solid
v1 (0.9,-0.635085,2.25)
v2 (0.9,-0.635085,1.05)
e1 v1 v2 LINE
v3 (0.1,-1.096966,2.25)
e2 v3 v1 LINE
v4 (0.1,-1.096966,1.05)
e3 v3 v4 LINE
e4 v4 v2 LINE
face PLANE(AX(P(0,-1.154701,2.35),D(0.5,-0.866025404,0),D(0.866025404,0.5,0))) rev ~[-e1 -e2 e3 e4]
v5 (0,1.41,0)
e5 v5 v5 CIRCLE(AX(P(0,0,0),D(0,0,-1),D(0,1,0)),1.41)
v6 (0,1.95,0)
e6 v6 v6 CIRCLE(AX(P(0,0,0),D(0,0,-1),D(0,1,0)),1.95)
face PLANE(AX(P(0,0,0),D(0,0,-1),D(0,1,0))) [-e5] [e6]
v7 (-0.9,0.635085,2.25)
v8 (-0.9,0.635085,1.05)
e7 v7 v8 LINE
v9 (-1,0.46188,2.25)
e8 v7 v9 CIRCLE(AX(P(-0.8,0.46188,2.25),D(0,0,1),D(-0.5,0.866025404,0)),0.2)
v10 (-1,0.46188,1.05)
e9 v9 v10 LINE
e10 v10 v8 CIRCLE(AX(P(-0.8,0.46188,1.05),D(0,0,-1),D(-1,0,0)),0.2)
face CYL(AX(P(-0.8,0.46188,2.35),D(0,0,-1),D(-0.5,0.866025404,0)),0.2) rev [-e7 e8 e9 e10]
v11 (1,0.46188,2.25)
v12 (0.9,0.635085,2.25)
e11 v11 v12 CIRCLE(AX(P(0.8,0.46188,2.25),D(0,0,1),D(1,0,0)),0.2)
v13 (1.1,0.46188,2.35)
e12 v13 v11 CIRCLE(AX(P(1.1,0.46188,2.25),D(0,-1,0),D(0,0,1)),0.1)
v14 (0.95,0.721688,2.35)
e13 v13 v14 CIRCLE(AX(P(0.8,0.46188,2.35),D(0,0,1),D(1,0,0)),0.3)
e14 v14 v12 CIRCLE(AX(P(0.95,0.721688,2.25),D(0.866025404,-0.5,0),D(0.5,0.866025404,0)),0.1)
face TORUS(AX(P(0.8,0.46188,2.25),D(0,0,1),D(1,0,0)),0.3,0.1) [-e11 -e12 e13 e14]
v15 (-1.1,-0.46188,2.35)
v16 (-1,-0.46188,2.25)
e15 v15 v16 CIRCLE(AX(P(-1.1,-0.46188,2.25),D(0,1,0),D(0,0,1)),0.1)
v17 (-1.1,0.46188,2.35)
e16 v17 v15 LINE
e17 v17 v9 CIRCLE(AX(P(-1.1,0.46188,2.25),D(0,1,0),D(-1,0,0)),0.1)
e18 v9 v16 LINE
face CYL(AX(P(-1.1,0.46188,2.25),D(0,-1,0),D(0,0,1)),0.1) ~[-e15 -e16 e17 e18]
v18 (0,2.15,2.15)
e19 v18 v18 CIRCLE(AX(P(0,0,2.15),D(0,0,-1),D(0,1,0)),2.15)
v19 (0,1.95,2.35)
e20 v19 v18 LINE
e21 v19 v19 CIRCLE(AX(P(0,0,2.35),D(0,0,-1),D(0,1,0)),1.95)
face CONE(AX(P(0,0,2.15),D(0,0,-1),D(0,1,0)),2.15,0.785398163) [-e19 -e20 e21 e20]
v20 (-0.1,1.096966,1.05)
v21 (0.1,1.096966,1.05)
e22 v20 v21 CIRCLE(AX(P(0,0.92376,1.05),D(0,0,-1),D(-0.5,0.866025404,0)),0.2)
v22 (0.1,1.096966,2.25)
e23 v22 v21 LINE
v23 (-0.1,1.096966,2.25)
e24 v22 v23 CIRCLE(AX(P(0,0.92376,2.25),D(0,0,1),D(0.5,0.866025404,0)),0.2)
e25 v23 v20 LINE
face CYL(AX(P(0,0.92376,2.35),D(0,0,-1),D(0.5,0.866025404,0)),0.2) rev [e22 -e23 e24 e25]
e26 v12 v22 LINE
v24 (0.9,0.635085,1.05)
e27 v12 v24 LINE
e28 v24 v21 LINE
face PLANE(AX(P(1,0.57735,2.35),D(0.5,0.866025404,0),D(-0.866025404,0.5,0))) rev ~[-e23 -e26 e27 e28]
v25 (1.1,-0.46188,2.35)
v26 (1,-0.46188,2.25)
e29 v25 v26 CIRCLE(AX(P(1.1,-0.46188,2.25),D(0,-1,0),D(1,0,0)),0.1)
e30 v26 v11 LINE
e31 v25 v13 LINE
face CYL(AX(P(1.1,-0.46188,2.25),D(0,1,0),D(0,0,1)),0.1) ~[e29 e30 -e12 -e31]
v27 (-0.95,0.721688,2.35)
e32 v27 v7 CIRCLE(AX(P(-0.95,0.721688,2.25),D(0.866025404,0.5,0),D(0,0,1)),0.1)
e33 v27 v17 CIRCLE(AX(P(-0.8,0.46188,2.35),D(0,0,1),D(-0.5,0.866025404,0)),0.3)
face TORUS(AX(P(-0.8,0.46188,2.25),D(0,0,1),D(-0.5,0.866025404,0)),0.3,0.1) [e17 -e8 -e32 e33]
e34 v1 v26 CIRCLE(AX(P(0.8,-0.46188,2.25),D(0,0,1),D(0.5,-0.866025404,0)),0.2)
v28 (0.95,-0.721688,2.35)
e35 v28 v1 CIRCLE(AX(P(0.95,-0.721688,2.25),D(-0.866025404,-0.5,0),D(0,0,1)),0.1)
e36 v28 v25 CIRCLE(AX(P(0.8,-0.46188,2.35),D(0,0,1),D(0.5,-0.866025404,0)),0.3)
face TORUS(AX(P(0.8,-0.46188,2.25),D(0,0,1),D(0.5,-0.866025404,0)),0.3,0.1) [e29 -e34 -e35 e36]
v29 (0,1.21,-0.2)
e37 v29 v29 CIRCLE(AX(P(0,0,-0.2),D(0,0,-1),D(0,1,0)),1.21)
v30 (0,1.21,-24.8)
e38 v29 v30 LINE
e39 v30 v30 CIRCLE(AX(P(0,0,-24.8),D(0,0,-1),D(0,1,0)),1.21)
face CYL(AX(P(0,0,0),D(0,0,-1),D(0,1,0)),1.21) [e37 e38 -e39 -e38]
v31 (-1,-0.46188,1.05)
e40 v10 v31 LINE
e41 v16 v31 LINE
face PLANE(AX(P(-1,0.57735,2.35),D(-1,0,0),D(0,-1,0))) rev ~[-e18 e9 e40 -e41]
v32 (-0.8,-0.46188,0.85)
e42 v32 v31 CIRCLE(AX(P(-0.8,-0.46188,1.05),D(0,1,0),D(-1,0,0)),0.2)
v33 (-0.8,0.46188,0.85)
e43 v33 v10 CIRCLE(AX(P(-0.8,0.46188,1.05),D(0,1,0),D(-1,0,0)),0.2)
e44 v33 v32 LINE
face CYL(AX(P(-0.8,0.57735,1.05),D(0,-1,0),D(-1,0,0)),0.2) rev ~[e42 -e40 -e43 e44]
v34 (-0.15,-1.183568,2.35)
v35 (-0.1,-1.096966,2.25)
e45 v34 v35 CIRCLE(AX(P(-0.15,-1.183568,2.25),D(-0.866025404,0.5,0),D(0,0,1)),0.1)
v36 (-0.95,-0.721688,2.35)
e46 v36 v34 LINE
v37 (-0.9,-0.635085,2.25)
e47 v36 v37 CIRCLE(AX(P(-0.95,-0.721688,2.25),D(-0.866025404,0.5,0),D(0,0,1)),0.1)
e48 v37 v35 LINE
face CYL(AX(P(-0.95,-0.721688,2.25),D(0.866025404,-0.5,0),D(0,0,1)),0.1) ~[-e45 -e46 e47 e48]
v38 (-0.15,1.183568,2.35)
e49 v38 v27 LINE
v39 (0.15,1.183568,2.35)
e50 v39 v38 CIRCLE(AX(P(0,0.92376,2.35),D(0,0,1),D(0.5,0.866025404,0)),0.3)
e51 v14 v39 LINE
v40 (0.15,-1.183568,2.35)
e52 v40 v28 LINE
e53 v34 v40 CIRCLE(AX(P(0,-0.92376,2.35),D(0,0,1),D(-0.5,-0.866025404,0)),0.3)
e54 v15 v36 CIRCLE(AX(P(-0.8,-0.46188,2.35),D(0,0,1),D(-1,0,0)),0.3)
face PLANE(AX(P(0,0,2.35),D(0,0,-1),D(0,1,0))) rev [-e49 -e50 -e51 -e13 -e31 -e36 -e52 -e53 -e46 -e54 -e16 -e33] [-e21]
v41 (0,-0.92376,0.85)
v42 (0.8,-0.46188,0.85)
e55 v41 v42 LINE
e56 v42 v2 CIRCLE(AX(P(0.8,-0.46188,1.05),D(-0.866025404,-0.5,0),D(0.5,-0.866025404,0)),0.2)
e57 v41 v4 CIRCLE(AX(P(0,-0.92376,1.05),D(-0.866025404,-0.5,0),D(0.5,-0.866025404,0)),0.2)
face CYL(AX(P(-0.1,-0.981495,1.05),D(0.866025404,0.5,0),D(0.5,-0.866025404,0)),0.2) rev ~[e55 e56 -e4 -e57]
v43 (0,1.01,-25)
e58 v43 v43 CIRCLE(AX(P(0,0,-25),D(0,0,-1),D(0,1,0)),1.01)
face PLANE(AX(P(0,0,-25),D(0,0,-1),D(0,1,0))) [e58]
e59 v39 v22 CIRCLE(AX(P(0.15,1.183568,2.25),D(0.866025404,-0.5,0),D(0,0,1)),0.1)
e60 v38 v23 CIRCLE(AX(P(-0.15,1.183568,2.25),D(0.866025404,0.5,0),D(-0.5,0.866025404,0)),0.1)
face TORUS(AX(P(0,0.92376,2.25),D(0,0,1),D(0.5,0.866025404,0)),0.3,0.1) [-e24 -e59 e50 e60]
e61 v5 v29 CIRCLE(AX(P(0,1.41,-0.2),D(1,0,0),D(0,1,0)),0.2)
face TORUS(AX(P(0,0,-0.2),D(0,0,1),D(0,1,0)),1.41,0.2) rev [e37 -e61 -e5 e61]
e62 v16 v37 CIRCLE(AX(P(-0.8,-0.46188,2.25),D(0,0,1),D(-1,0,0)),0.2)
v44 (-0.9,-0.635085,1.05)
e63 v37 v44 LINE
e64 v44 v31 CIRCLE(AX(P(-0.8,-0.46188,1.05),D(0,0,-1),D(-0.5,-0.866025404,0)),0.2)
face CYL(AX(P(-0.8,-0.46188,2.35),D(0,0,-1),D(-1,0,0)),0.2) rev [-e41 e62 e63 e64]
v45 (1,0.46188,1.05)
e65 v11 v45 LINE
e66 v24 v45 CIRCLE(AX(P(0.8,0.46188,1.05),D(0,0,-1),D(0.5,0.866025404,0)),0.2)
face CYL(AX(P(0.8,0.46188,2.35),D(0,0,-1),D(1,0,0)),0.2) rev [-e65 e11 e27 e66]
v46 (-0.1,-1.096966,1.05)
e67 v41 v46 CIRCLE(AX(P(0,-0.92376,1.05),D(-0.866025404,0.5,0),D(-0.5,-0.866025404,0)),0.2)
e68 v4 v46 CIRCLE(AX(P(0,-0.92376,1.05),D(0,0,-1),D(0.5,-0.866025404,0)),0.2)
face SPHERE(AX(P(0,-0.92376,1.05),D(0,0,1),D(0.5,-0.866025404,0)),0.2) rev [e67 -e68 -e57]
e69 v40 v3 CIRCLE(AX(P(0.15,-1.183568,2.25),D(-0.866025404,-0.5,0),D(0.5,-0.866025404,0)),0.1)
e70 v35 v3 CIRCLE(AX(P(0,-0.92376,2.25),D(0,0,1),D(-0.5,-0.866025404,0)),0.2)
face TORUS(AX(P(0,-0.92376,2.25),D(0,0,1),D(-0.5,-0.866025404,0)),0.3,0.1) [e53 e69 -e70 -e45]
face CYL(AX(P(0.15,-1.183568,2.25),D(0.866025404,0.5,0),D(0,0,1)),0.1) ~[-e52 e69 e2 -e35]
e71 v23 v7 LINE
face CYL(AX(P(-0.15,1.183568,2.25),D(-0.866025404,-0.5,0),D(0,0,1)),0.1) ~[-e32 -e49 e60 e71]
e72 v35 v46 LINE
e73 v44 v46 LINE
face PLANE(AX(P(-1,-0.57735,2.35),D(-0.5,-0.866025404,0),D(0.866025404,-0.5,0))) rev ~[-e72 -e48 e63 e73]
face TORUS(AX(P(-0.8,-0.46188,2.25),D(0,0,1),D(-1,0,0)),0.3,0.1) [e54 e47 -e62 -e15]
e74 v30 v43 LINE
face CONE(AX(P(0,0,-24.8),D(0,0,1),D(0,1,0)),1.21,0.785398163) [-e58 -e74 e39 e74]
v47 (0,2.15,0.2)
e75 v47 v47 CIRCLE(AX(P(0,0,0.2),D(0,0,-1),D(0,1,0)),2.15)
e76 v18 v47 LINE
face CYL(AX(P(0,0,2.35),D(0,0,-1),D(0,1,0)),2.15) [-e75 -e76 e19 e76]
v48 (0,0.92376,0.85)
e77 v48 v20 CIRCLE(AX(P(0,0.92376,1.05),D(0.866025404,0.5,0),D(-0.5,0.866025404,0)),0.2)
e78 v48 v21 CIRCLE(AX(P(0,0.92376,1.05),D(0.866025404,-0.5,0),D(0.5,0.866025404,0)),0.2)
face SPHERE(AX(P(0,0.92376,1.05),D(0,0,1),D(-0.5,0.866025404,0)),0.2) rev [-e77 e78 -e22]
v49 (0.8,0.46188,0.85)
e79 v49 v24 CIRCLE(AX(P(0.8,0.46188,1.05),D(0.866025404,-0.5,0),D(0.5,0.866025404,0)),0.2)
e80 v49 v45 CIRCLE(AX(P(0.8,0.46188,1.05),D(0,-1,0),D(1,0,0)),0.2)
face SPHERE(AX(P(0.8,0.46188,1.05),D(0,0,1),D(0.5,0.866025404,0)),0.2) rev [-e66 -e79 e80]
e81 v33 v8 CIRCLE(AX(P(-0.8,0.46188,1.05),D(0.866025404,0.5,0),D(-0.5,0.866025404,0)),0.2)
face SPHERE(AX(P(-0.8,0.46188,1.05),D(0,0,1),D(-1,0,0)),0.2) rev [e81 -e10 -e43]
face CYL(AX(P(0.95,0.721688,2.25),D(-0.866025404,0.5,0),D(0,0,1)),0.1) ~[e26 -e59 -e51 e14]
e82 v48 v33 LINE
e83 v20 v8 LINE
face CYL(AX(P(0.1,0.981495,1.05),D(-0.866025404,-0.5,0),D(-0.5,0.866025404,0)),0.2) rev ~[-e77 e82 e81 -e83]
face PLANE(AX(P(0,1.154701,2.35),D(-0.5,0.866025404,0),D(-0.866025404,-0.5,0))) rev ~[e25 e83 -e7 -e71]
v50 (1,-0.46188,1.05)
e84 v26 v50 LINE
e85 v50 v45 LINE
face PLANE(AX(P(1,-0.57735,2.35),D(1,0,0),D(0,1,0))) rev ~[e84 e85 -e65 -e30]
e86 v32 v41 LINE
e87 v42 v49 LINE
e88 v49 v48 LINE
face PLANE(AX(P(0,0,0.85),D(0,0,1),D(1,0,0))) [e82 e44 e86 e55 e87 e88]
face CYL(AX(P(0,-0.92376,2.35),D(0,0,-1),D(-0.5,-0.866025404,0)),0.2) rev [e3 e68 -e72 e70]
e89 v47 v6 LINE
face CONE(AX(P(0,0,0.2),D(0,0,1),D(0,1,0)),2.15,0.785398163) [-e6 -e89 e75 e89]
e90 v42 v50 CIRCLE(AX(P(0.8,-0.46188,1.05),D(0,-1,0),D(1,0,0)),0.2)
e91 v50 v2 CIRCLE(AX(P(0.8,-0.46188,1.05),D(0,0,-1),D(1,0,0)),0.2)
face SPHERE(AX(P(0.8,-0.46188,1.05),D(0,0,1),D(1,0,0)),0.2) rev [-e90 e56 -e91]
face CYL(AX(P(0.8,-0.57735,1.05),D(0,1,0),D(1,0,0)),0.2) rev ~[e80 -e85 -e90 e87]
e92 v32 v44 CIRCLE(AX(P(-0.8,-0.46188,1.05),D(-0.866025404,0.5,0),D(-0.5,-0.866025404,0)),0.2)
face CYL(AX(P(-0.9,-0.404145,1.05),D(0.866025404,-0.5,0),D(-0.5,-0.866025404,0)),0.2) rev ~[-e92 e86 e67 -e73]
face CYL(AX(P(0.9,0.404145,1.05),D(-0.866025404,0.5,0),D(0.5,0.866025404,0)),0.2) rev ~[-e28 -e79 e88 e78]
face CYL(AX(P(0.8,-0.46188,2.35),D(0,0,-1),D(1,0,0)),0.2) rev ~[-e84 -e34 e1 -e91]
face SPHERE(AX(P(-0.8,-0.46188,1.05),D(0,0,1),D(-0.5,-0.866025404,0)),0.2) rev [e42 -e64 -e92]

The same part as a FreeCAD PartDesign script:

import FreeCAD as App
import Part
import Sketcher

V = App.Vector
Q = App.Units.Quantity


def edges_at(feature, points):
    """Names of the edges that pass closest to the given points."""
    edges = feature.Shape.Edges
    near = lambda p: min(range(len(edges)), key=lambda i: edges[i].distToShape(Part.Vertex(*p))[0])
    return sorted({f"Edge{near(p) + 1}" for p in points})


def add_polygon(sketch, points):
    """Adds a closed chain of lines whose ends are joined by coincident constraints."""
    first, n = sketch.GeometryCount, len(points)
    for a, b in zip(points, points[1:] + points[:1]):
        sketch.addGeometry(Part.LineSegment(App.Vector(*a, 0), App.Vector(*b, 0)), False)
    for i in range(n):
        sketch.addConstraint(Sketcher.Constraint("Coincident", first + i, 2, first + (i + 1) % n, 1))

doc = App.newDocument("Part")
body = doc.addObject("PartDesign::Body", "Body")

sketch1 = body.newObject("Sketcher::SketchObject", "Sketch")
sketch1.AttachmentSupport = (doc.getObject("YZ_Plane"), [""])
sketch1.MapMode = "FlatFace"
add_polygon(sketch1, [(2.1, 2.4), (0, 2.4), (0, -25), (1.2, -25), (1.2, 0), (2.1, 0)])
sketch1.addConstraint(Sketcher.Constraint("Horizontal", 0))
sketch1.addConstraint(Sketcher.Constraint("Vertical", 1))
sketch1.addConstraint(Sketcher.Constraint("Horizontal", 2))
sketch1.addConstraint(Sketcher.Constraint("Vertical", 3))
sketch1.addConstraint(Sketcher.Constraint("Horizontal", 4))
sketch1.addConstraint(Sketcher.Constraint("Vertical", 5))
sketch1.addConstraint(Sketcher.Constraint("PointOnObject", 0, 2, -2))
sketch1.addConstraint(Sketcher.Constraint("PointOnObject", 3, 2, -1))
sketch1.addConstraint(Sketcher.Constraint("DistanceY", 3, 1, 3, 2, Q("25 mm")))
sketch1.addConstraint(Sketcher.Constraint("DistanceX", 0, 2, 0, 1, Q("2.15 mm")))
sketch1.addConstraint(Sketcher.Constraint("DistanceX", 2, 1, 2, 2, Q("1.21 mm")))
sketch1.addConstraint(Sketcher.Constraint("DistanceY", 1, 2, 1, 1, Q("27.35 mm")))
revolution = body.newObject("PartDesign::Revolution", "Revolution")
revolution.Profile = sketch1
revolution.ReferenceAxis = (sketch1, ["V_Axis"])
revolution.Angle = 360

sketch2 = body.newObject("Sketcher::SketchObject", "Sketch001")
sketch2.AttachmentSupport = (doc.getObject("XY_Plane"), [""])
sketch2.MapMode = "FlatFace"
sketch2.AttachmentOffset = App.Placement(V(0, 0, 2.35), App.Rotation())
add_polygon(sketch2, [(1, -0.6), (1, 0.6), (0, 1.2), (-1, 0.6), (-1, -0.6), (0, -1.2)])
sketch2.addConstraint(Sketcher.Constraint("Vertical", 0))
sketch2.addConstraint(Sketcher.Constraint("Vertical", 3))
sketch2.addConstraint(Sketcher.Constraint("Symmetric", 0, 2, 3, 2, -1, 1))
sketch2.addConstraint(Sketcher.Constraint("Symmetric", 1, 2, 4, 2, -1, 1))
sketch2.addConstraint(Sketcher.Constraint("PointOnObject", 1, 2, -2))
sketch2.addConstraint(Sketcher.Constraint("Parallel", 2, 5))
sketch2.addConstraint(Sketcher.Constraint("Horizontal", 0, 2, 2, 2))
sketch2.addConstraint(Sketcher.Constraint("Angle", 1, Q("150 deg")))
sketch2.addConstraint(Sketcher.Constraint("DistanceX", -1, 1, 0, 2, Q("1 mm")))
sketch2.addConstraint(Sketcher.Constraint("DistanceY", 0, 1, 0, 2, Q("1.154701 mm")))
pocket1 = body.newObject("PartDesign::Pocket", "Pocket")
pocket1.Profile = sketch2
pocket1.Length = 1.5
doc.recompute()

chamfer = body.newObject("PartDesign::Chamfer", "Chamfer")
chamfer.Base = (pocket1, edges_at(pocket1, [(0, -1.21, -25), (0, -2.15, 0), (0, -2.15, 2.35)]))
chamfer.Size = 0.2
doc.recompute()

fillet = body.newObject("PartDesign::Fillet", "Fillet")
fillet.Base = (chamfer, edges_at(chamfer, [
    (0.5, -0.866, 0.85),
    (1, -0.577, 1.6),
    (-0.5, -0.866, 0.85),
    (0, -1.155, 1.6),
    (-1, 0, 0.85),
    (-1, -0.577, 1.6),
    (-0.5, 0.866, 0.85),
    (-1, 0.577, 1.6),
    (0.5, 0.866, 0.85),
    (0, 1.155, 1.6),
    (1, 0, 0.85),
    (1, 0.577, 1.6),
    (0, -1.21, 0),
]))
fillet.Radius = 0.2
doc.recompute()

fillet2 = body.newObject("PartDesign::Fillet", "Fillet001")
fillet2.Base = (fillet, edges_at(fillet, [
    (-0.5, -0.866, 2.35),
    (-1, 0, 2.35),
    (-0.5, 0.866, 2.35),
    (0.5, 0.866, 2.35),
    (1, 0, 2.35),
    (0.5, -0.866, 2.35),
    (-0.973, -0.562, 2.35),
    (0, -1.124, 2.35),
    (0.973, -0.562, 2.35),
    (0.973, 0.562, 2.35),
    (0, 1.124, 2.35),
    (-0.973, 0.562, 2.35),
]))
fillet2.Radius = 0.1

doc.recompute()
